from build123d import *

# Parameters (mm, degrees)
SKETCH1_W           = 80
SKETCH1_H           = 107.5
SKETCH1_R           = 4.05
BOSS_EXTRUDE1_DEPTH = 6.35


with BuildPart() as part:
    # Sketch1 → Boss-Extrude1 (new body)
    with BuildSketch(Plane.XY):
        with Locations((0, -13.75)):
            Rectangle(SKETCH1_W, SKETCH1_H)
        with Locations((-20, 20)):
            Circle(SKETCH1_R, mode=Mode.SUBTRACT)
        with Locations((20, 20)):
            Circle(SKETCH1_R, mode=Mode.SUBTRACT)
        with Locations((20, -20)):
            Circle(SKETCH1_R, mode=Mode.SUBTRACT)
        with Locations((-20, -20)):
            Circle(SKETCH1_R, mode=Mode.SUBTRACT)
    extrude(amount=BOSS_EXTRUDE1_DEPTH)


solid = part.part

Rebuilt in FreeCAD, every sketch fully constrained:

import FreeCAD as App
import Part
import Sketcher

V = App.Vector
Q = App.Units.Quantity


def add_polygon(sketch, points):
    """Adds a closed chain of lines whose ends are joined by coincident constraints."""
    first, n = sketch.GeometryCount, len(points)
    for a, b in zip(points, points[1:] + points[:1]):
        sketch.addGeometry(Part.LineSegment(App.Vector(*a, 0), App.Vector(*b, 0)), False)
    for i in range(n):
        sketch.addConstraint(Sketcher.Constraint("Coincident", first + i, 2, first + (i + 1) % n, 1))

doc = App.newDocument("Part")
body = doc.addObject("PartDesign::Body", "Body")

# Sketch on XY plane
sketch1 = body.newObject("Sketcher::SketchObject", "Sketch")
sketch1.AttachmentSupport = (doc.getObject("XY_Plane"), [""])
sketch1.MapMode = "FlatFace"
add_polygon(sketch1, [(-40, 40), (-40, -67.5), (40, -67.5), (40, 40)])  # lines 0-3
sketch1.addGeometry(Part.Circle(V(-20, -20, 0), V(0, 0, 1), 4), False)  # 4
sketch1.addGeometry(Part.Circle(V(20, -20, 0), V(0, 0, 1), 4), False)  # 5
sketch1.addGeometry(Part.Circle(V(-20, 20, 0), V(0, 0, 1), 4), False)  # 6
sketch1.addGeometry(Part.Circle(V(20, 20, 0), V(0, 0, 1), 4), False)  # 7
sketch1.addConstraint(Sketcher.Constraint("Vertical", 0))
sketch1.addConstraint(Sketcher.Constraint("Horizontal", 1))
sketch1.addConstraint(Sketcher.Constraint("Vertical", 2))
sketch1.addConstraint(Sketcher.Constraint("Horizontal", 3))
sketch1.addConstraint(Sketcher.Constraint("Equal", 4, 5))
sketch1.addConstraint(Sketcher.Constraint("Equal", 5, 6))
sketch1.addConstraint(Sketcher.Constraint("Equal", 6, 7))
sketch1.addConstraint(Sketcher.Constraint("Symmetric", 5, 3, 6, 3, -1, 1))
sketch1.addConstraint(Sketcher.Constraint("Symmetric", 4, 3, 7, 3, -1, 1))
sketch1.addConstraint(Sketcher.Constraint("Symmetric", 4, 3, 5, 3, -2))
sketch1.addConstraint(Sketcher.Constraint("Diameter", 4, Q("8.1 mm")))
sketch1.addConstraint(Sketcher.Constraint("DistanceX", 1, 1, 1, 2, Q("80 mm")))
sketch1.addConstraint(Sketcher.Constraint("DistanceY", 0, 2, 0, 1, Q("107.5 mm")))
sketch1.addConstraint(Sketcher.Constraint("DistanceX", 4, 3, -1, 1, Q("20 mm")))
sketch1.addConstraint(Sketcher.Constraint("DistanceY", 4, 3, -1, 1, Q("20 mm")))
sketch1.addConstraint(Sketcher.Constraint("DistanceX", 0, 2, -1, 1, Q("40 mm")))
sketch1.addConstraint(Sketcher.Constraint("DistanceY", -1, 1, 2, 2, Q("40 mm")))
pad1 = body.newObject("PartDesign::Pad", "Pad")
pad1.Profile = sketch1
pad1.Length = 6.35

doc.recompute()
